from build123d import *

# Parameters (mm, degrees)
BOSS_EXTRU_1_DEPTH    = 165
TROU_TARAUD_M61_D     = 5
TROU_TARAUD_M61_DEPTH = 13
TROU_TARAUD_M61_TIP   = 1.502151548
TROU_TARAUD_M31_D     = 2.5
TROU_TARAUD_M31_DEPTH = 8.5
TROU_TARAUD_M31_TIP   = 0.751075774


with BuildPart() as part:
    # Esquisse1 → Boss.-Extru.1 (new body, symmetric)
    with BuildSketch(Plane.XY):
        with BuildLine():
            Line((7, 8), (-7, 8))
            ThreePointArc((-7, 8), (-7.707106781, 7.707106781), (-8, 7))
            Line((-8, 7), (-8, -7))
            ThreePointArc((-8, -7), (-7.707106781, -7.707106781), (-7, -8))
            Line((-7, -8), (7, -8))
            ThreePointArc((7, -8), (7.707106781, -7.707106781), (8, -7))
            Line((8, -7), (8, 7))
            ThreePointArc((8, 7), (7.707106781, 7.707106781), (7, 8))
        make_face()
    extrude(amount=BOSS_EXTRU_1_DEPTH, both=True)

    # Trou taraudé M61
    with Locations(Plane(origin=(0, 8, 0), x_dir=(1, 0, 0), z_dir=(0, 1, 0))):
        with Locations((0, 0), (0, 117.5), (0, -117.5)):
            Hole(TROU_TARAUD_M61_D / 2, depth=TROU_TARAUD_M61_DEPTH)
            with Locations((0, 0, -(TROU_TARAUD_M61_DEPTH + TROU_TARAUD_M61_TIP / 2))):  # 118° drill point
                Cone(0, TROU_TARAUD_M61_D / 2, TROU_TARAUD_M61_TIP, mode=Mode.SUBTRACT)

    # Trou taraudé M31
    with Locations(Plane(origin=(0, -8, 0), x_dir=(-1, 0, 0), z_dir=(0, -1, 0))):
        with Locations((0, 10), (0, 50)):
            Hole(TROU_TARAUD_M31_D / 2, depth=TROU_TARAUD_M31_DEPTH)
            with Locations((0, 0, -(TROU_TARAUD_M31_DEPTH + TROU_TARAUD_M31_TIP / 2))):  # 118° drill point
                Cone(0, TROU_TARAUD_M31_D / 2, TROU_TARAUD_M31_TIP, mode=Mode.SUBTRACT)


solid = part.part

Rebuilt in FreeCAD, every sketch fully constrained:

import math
import FreeCAD as App
import Part
import Sketcher
from FreeCAD import Vector

doc = App.newDocument("Part")
body = doc.addObject("PartDesign::Body", "Body")

sketch1 = body.newObject("Sketcher::SketchObject", "Sketch")
sketch1.AttachmentSupport = (doc.getObject("XY_Plane"), [""])
sketch1.MapMode = "FlatFace"
sketch1.addGeometry(Part.LineSegment(Vector(7, 8, 0), Vector(-7, 8, 0)), False)
sketch1.addGeometry(Part.ArcOfCircle(Part.Circle(Vector(-7, 7, 0), Vector(0, 0, 1), 1), math.radians(90), math.radians(180)), False)
sketch1.addGeometry(Part.LineSegment(Vector(-8, 7, 0), Vector(-8, -7, 0)), False)
sketch1.addGeometry(Part.ArcOfCircle(Part.Circle(Vector(-7, -7, 0), Vector(0, 0, 1), 1), math.radians(-180), math.radians(-90)), False)
sketch1.addGeometry(Part.LineSegment(Vector(-7, -8, 0), Vector(7, -8, 0)), False)
sketch1.addGeometry(Part.ArcOfCircle(Part.Circle(Vector(7, -7, 0), Vector(0, 0, 1), 1), math.radians(-90), math.radians(0)), False)
sketch1.addGeometry(Part.LineSegment(Vector(8, -7, 0), Vector(8, 7, 0)), False)
sketch1.addGeometry(Part.ArcOfCircle(Part.Circle(Vector(7, 7, 0), Vector(0, 0, 1), 1), math.radians(0), math.radians(90)), False)
sketch1.addConstraint(Sketcher.Constraint("Tangent", 0, 2, 1, 1))
sketch1.addConstraint(Sketcher.Constraint("Tangent", 1, 2, 2, 1))
sketch1.addConstraint(Sketcher.Constraint("Tangent", 2, 2, 3, 1))
sketch1.addConstraint(Sketcher.Constraint("Tangent", 3, 2, 4, 1))
sketch1.addConstraint(Sketcher.Constraint("Tangent", 4, 2, 5, 1))
sketch1.addConstraint(Sketcher.Constraint("Tangent", 5, 2, 6, 1))
sketch1.addConstraint(Sketcher.Constraint("Tangent", 6, 2, 7, 1))
sketch1.addConstraint(Sketcher.Constraint("Tangent", 7, 2, 0, 1))
sketch1.addConstraint(Sketcher.Constraint("Horizontal", 0))
sketch1.addConstraint(Sketcher.Constraint("Vertical", 2))
sketch1.addConstraint(Sketcher.Constraint("Horizontal", 4))
sketch1.addConstraint(Sketcher.Constraint("Vertical", 6))
sketch1.addConstraint(Sketcher.Constraint("Equal", 1, 3))
sketch1.addConstraint(Sketcher.Constraint("Equal", 3, 5))
sketch1.addConstraint(Sketcher.Constraint("Equal", 5, 7))
sketch1.addConstraint(Sketcher.Constraint("Symmetric", 1, 3, 5, 3, -1, 1))
sketch1.addConstraint(Sketcher.Constraint("Equal", 4, 2))
sketch1.addConstraint(Sketcher.Constraint("Radius", 1, 1.0))
sketch1.addConstraint(Sketcher.Constraint("DistanceX", 0, 2, 0, 1, 14.0))
pad1 = body.newObject("PartDesign::Pad", "Pad")
pad1.Profile = sketch1
pad1.Length = 330
pad1.Midplane = True

sketch2 = body.newObject("Sketcher::SketchObject", "Sketch001")
sketch2.AttachmentSupport = (doc.getObject("XZ_Plane"), [""])
sketch2.MapMode = "FlatFace"
sketch2.AttachmentOffset = App.Placement(Vector(0, 0, -8), App.Rotation())
sketch2.addGeometry(Part.Circle(Vector(0, 0, 0), Vector(0, 0, 1), 2.5), False)
sketch2.addGeometry(Part.Circle(Vector(0, -117.5, 0), Vector(0, 0, 1), 2.5), False)
sketch2.addGeometry(Part.Circle(Vector(0, 117.5, 0), Vector(0, 0, 1), 2.5), False)
sketch2.addConstraint(Sketcher.Constraint("Coincident", 0, 3, -1, 1))
sketch2.addConstraint(Sketcher.Constraint("Equal", 0, 1))
sketch2.addConstraint(Sketcher.Constraint("Equal", 1, 2))
sketch2.addConstraint(Sketcher.Constraint("Symmetric", 1, 3, 2, 3, -1, 1))
sketch2.addConstraint(Sketcher.Constraint("PointOnObject", 1, 3, -2))
sketch2.addConstraint(Sketcher.Constraint("Diameter", 0, 5.0))
sketch2.addConstraint(Sketcher.Constraint("DistanceY", 1, 3, 2, 3, 235.0))
doc.recompute()
hole = body.newObject("PartDesign::Hole", "Hole")
hole.Profile = sketch2
hole.ThreadType = "None"
hole.Diameter = 5
hole.DepthType = "Dimension"
hole.Depth = 13
hole.DrillPoint = "Angled"
hole.DrillPointAngle = 118
hole.Reversed = True

sketch3 = body.newObject("Sketcher::SketchObject", "Sketch002")
sketch3.AttachmentSupport = (doc.getObject("XZ_Plane"), [""])
sketch3.MapMode = "FlatFace"
sketch3.AttachmentOffset = App.Placement(Vector(0, 0, 8), App.Rotation())
sketch3.addGeometry(Part.Circle(Vector(0, -10, 0), Vector(0, 0, 1), 1.25), False)
sketch3.addGeometry(Part.Circle(Vector(0, -50, 0), Vector(0, 0, 1), 1.25), False)
sketch3.addConstraint(Sketcher.Constraint("Equal", 0, 1))
sketch3.addConstraint(Sketcher.Constraint("PointOnObject", 0, 3, -2))
sketch3.addConstraint(Sketcher.Constraint("PointOnObject", 1, 3, -2))
sketch3.addConstraint(Sketcher.Constraint("Diameter", 0, 2.5))
sketch3.addConstraint(Sketcher.Constraint("DistanceY", 0, 3, -1, 1, 10.0))
sketch3.addConstraint(Sketcher.Constraint("DistanceY", 1, 3, -1, 1, 50.0))
doc.recompute()
hole2 = body.newObject("PartDesign::Hole", "Hole001")
hole2.Profile = sketch3
hole2.ThreadType = "None"
hole2.Diameter = 2.5
hole2.DepthType = "Dimension"
hole2.Depth = 8.5
hole2.DrillPoint = "Angled"
hole2.DrillPointAngle = 118

doc.recompute()
